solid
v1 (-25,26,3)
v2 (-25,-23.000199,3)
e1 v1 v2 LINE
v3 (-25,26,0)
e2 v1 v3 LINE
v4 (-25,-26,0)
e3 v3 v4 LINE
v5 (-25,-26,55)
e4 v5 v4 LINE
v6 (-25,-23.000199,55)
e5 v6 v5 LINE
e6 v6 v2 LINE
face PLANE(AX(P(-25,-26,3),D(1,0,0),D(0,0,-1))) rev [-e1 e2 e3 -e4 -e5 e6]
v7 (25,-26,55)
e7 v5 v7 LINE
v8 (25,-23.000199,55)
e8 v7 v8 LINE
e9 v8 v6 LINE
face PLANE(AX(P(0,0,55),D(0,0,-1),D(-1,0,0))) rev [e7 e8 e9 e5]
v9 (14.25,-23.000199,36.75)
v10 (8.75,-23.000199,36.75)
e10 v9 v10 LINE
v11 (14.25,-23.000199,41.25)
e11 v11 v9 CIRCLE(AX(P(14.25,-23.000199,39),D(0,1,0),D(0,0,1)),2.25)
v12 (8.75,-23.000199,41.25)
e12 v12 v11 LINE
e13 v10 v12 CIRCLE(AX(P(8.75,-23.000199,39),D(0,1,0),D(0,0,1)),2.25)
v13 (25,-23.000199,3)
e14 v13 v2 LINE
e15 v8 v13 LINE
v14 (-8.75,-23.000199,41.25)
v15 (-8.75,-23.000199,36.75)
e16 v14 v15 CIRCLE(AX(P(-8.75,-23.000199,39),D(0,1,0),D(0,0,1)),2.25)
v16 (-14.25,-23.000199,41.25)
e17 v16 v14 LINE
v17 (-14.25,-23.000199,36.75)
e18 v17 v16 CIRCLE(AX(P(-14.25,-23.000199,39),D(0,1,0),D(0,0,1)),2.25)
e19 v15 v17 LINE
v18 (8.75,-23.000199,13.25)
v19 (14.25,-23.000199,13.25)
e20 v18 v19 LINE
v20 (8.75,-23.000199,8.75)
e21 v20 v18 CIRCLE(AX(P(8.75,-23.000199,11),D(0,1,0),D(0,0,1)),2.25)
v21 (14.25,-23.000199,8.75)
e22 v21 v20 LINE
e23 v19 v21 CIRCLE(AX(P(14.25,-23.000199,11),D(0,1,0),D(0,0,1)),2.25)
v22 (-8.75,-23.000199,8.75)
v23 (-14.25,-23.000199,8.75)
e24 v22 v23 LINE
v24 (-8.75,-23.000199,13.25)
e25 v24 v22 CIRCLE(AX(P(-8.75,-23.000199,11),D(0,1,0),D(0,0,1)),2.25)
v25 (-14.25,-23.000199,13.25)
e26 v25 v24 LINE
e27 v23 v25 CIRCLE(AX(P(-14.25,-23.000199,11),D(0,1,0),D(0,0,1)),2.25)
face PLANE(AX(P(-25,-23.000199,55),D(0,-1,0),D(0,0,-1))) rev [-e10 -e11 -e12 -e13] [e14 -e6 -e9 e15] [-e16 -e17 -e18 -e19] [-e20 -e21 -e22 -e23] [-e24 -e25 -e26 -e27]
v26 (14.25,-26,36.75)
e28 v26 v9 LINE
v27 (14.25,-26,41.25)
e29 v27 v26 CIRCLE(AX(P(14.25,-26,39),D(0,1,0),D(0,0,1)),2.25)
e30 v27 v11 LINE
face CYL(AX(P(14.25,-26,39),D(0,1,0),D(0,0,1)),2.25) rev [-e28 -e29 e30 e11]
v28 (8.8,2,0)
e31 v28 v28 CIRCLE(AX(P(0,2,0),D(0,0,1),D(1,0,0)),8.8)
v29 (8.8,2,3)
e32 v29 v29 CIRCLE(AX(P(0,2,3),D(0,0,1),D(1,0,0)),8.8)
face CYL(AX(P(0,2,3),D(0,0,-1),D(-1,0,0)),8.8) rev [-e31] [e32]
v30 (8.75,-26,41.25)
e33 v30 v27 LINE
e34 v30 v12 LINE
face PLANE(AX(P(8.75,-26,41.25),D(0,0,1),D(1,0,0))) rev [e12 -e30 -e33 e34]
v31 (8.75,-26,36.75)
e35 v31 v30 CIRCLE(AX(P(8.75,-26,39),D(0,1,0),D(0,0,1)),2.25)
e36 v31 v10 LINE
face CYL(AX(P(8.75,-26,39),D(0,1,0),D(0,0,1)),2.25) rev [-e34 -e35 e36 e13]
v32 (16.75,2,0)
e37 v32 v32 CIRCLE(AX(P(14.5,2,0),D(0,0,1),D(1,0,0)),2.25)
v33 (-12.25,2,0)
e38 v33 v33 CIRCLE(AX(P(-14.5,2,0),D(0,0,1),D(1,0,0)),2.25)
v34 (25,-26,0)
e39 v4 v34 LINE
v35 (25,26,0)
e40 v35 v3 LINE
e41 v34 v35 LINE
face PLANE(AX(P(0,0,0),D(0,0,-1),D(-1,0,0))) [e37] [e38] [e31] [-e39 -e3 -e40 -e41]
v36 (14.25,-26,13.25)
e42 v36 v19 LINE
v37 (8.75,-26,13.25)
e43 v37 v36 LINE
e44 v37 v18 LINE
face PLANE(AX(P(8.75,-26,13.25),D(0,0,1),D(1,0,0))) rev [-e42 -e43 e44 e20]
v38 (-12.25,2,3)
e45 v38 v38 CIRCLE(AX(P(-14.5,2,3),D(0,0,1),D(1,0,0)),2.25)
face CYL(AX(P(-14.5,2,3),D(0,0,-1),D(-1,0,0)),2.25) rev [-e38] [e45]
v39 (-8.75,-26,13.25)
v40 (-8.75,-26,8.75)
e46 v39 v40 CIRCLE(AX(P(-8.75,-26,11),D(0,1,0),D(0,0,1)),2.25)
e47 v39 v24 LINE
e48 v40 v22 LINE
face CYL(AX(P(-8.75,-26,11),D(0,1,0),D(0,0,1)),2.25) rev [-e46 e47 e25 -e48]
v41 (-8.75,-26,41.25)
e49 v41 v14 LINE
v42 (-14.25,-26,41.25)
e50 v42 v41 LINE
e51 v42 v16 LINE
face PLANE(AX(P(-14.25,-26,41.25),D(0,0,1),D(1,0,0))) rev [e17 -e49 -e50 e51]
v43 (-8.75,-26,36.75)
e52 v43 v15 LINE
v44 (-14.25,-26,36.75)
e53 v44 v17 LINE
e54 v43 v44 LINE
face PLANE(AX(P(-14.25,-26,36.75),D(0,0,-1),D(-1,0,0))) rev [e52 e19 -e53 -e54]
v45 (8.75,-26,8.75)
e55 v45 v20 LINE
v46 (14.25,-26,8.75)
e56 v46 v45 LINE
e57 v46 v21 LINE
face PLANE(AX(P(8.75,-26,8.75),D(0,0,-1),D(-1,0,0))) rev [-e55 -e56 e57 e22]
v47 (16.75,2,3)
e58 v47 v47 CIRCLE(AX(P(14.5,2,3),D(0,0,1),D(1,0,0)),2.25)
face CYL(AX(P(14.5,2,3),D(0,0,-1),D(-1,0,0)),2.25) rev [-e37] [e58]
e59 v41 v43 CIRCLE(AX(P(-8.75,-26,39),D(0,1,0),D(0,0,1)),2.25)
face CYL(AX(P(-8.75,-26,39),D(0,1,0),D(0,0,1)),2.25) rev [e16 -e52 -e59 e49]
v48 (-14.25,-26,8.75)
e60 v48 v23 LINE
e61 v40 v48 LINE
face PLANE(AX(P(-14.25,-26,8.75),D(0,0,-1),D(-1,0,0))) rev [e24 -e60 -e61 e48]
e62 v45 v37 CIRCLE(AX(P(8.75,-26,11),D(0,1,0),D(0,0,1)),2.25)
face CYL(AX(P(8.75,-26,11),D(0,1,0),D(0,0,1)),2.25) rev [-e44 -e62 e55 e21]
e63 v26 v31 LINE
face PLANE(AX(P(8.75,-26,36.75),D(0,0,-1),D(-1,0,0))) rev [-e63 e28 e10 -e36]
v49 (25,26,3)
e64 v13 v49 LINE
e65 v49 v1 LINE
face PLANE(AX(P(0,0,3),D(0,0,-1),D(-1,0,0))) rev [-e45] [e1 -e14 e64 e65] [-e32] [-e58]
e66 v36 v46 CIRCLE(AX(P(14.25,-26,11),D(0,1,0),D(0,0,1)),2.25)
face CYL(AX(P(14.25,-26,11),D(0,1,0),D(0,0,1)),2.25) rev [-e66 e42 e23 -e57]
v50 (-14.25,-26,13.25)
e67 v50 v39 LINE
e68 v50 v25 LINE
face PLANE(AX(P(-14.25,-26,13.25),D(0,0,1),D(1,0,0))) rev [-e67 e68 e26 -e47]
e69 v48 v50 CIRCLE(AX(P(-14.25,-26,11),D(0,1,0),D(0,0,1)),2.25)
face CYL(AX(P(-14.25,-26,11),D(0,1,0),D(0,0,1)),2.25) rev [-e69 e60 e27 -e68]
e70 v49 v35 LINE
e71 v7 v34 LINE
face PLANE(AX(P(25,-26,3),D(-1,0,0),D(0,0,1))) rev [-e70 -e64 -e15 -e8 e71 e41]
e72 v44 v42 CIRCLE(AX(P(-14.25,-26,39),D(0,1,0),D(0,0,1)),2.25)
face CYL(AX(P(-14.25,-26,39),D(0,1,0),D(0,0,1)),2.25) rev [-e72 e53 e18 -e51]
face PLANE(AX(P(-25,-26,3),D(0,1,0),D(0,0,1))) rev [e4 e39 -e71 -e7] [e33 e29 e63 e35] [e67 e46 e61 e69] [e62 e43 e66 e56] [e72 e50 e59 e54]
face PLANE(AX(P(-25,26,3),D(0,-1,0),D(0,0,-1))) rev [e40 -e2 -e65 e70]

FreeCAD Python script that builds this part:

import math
import FreeCAD as App
import Part
import Sketcher

V = App.Vector


def add_polygon(sketch, points):
    """Adds a closed chain of lines whose ends are joined by coincident constraints."""
    first, n = sketch.GeometryCount, len(points)
    for a, b in zip(points, points[1:] + points[:1]):
        sketch.addGeometry(Part.LineSegment(App.Vector(*a, 0), App.Vector(*b, 0)), False)
    for i in range(n):
        sketch.addConstraint(Sketcher.Constraint("Coincident", first + i, 2, first + (i + 1) % n, 1))

doc = App.newDocument("Part")
body = doc.addObject("PartDesign::Body", "Body")

# Sketch on XY plane
sketch1 = body.newObject("Sketcher::SketchObject", "Sketch")
sketch1.AttachmentSupport = (doc.getObject("XY_Plane"), [""])
sketch1.MapMode = "FlatFace"
add_polygon(sketch1, [(-25, 26), (-25, -26), (25, -26), (25, 26)])  # lines 0-3
sketch1.addGeometry(Part.Circle(V(-14.5, 2, 0), V(0, 0, 1), 2.2), False)  # 4
sketch1.addGeometry(Part.Circle(V(0, 2, 0), V(0, 0, 1), 8.8), False)  # 5
sketch1.addGeometry(Part.Circle(V(14.5, 2, 0), V(0, 0, 1), 2.2), False)  # 6
sketch1.addConstraint([
    Sketcher.Constraint("Vertical", 0),
    Sketcher.Constraint("Horizontal", 1),
    Sketcher.Constraint("Vertical", 2),
    Sketcher.Constraint("Horizontal", 3),
    Sketcher.Constraint("Equal", 4, 6),
    Sketcher.Constraint("Symmetric", 0, 2, 2, 2, -1, 1),
    Sketcher.Constraint("Symmetric", 4, 3, 6, 3, -2),
    Sketcher.Constraint("PointOnObject", 5, 3, -2),
    Sketcher.Constraint("Horizontal", 4, 3, 5, 3),
    Sketcher.Constraint("Diameter", 4, 4.5),
    Sketcher.Constraint("Diameter", 5, 17.6),
    Sketcher.Constraint("DistanceX", 1, 1, 1, 2, 50.0),
    Sketcher.Constraint("DistanceY", 0, 2, 0, 1, 52.0),
    Sketcher.Constraint("DistanceY", -1, 1, 4, 3, 2.0),
    Sketcher.Constraint("DistanceX", 4, 3, 6, 3, 29.0),
])
pad1 = body.newObject("PartDesign::Pad", "Pad")
pad1.Profile = sketch1
pad1.Length = 3

# Sketch on XY plane
sketch2 = body.newObject("Sketcher::SketchObject", "Sketch001")
sketch2.AttachmentSupport = (doc.getObject("XY_Plane"), [""])
sketch2.MapMode = "FlatFace"
sketch2.AttachmentOffset = App.Placement(V(0, 0, 3), App.Rotation())
add_polygon(sketch2, [(-25, -23), (-25, -26), (25, -26), (25, -23)])  # lines 0-3
sketch2.addConstraint([
    Sketcher.Constraint("Vertical", 0),
    Sketcher.Constraint("Horizontal", 1),
    Sketcher.Constraint("Vertical", 2),
    Sketcher.Constraint("Horizontal", 3),
    Sketcher.Constraint("DistanceX", 1, 1, 1, 2, 50.0),
    Sketcher.Constraint("DistanceX", 0, 2, -1, 1, 25.0),
    Sketcher.Constraint("DistanceY", 0, 2, -1, 1, 26.0),
    Sketcher.Constraint("DistanceY", 0, 2, 0, 1, 2.999801),
])
pad2 = body.newObject("PartDesign::Pad", "Pad001")
pad2.Profile = sketch2
pad2.Length = 52

# Sketch on XZ plane
sketch3 = body.newObject("Sketcher::SketchObject", "Sketch002")
sketch3.AttachmentSupport = (doc.getObject("XZ_Plane"), [""])
sketch3.MapMode = "FlatFace"
sketch3.AttachmentOffset = App.Placement(V(0, 0, 23.000199), App.Rotation())
sketch3.addGeometry([
    Part.LineSegment(V(-8.8, 36.8, 0), V(-14.2, 36.8, 0)),  # 0
    Part.ArcOfCircle(Part.Circle(V(-14.2, 39, 0), V(0, 0, 1), 2.2), math.radians(90), math.radians(270)),  # 1
    Part.LineSegment(V(-14.2, 41.2, 0), V(-8.8, 41.2, 0)),  # 2
    Part.ArcOfCircle(Part.Circle(V(-8.8, 39, 0), V(0, 0, 1), 2.2), math.radians(-90), math.radians(90)),  # 3
    Part.LineSegment(V(14.2, 36.8, 0), V(8.8, 36.8, 0)),  # 4
    Part.ArcOfCircle(Part.Circle(V(8.8, 39, 0), V(0, 0, 1), 2.2), math.radians(90), math.radians(270)),  # 5
    Part.LineSegment(V(8.8, 41.2, 0), V(14.2, 41.2, 0)),  # 6
    Part.ArcOfCircle(Part.Circle(V(14.2, 39, 0), V(0, 0, 1), 2.2), math.radians(-90), math.radians(90)),  # 7
    Part.LineSegment(V(-8.8, 8.8, 0), V(-14.2, 8.8, 0)),  # 8
    Part.ArcOfCircle(Part.Circle(V(-14.2, 11, 0), V(0, 0, 1), 2.2), math.radians(90), math.radians(270)),  # 9
    Part.LineSegment(V(-14.2, 13.2, 0), V(-8.8, 13.2, 0)),  # 10
    Part.ArcOfCircle(Part.Circle(V(-8.8, 11, 0), V(0, 0, 1), 2.2), math.radians(-90), math.radians(90)),  # 11
    Part.LineSegment(V(14.2, 8.8, 0), V(8.8, 8.8, 0)),  # 12
    Part.ArcOfCircle(Part.Circle(V(8.8, 11, 0), V(0, 0, 1), 2.2), math.radians(90), math.radians(270)),  # 13
    Part.LineSegment(V(8.8, 13.2, 0), V(14.2, 13.2, 0)),  # 14
    Part.ArcOfCircle(Part.Circle(V(14.2, 11, 0), V(0, 0, 1), 2.2), math.radians(-90), math.radians(90)),  # 15
], False)
sketch3.addConstraint([
    Sketcher.Constraint("Tangent", 0, 2, 1, 2),
    Sketcher.Constraint("Tangent", 1, 1, 2, 1),
    Sketcher.Constraint("Tangent", 2, 2, 3, 2),
    Sketcher.Constraint("Tangent", 3, 1, 0, 1),
    Sketcher.Constraint("Tangent", 4, 2, 5, 2),
    Sketcher.Constraint("Tangent", 5, 1, 6, 1),
    Sketcher.Constraint("Tangent", 6, 2, 7, 2),
    Sketcher.Constraint("Tangent", 7, 1, 4, 1),
    Sketcher.Constraint("Tangent", 8, 2, 9, 2),
    Sketcher.Constraint("Tangent", 9, 1, 10, 1),
    Sketcher.Constraint("Tangent", 10, 2, 11, 2),
    Sketcher.Constraint("Tangent", 11, 1, 8, 1),
    Sketcher.Constraint("Tangent", 12, 2, 13, 2),
    Sketcher.Constraint("Tangent", 13, 1, 14, 1),
    Sketcher.Constraint("Tangent", 14, 2, 15, 2),
    Sketcher.Constraint("Tangent", 15, 1, 12, 1),
    Sketcher.Constraint("Horizontal", 0),
    Sketcher.Constraint("Horizontal", 2),
    Sketcher.Constraint("Horizontal", 4),
    Sketcher.Constraint("Horizontal", 6),
    Sketcher.Constraint("Horizontal", 8),
    Sketcher.Constraint("Horizontal", 10),
    Sketcher.Constraint("Horizontal", 12),
    Sketcher.Constraint("Horizontal", 14),
    Sketcher.Constraint("Equal", 3, 5),
    Sketcher.Constraint("Equal", 7, 9),
    Sketcher.Constraint("Equal", 11, 13),
    Sketcher.Constraint("Symmetric", 3, 3, 5, 3, -2),
    Sketcher.Constraint("Symmetric", 11, 3, 13, 3, -2),
    Sketcher.Constraint("Vertical", 1, 3, 9, 3),
    Sketcher.Constraint("Vertical", 3, 3, 11, 3),
    Sketcher.Constraint("Vertical", 7, 3, 15, 3),
    Sketcher.Constraint("Equal", 2, 4),
    Sketcher.Constraint("Radius", 1, 2.25),
    Sketcher.Constraint("DistanceX", 0, 2, 0, 1, 5.5),
    Sketcher.Constraint("DistanceY", -1, 1, 1, 3, 39.0),
    Sketcher.Constraint("DistanceY", -1, 1, 9, 3, 11.0),
    Sketcher.Constraint("DistanceX", 1, 3, 5, 3, 23.0),
])
pocket1 = body.newObject("PartDesign::Pocket", "Pocket")
pocket1.Profile = sketch3
pocket1.Type = "ThroughAll"
pocket1.Reversed = True

doc.recompute()
